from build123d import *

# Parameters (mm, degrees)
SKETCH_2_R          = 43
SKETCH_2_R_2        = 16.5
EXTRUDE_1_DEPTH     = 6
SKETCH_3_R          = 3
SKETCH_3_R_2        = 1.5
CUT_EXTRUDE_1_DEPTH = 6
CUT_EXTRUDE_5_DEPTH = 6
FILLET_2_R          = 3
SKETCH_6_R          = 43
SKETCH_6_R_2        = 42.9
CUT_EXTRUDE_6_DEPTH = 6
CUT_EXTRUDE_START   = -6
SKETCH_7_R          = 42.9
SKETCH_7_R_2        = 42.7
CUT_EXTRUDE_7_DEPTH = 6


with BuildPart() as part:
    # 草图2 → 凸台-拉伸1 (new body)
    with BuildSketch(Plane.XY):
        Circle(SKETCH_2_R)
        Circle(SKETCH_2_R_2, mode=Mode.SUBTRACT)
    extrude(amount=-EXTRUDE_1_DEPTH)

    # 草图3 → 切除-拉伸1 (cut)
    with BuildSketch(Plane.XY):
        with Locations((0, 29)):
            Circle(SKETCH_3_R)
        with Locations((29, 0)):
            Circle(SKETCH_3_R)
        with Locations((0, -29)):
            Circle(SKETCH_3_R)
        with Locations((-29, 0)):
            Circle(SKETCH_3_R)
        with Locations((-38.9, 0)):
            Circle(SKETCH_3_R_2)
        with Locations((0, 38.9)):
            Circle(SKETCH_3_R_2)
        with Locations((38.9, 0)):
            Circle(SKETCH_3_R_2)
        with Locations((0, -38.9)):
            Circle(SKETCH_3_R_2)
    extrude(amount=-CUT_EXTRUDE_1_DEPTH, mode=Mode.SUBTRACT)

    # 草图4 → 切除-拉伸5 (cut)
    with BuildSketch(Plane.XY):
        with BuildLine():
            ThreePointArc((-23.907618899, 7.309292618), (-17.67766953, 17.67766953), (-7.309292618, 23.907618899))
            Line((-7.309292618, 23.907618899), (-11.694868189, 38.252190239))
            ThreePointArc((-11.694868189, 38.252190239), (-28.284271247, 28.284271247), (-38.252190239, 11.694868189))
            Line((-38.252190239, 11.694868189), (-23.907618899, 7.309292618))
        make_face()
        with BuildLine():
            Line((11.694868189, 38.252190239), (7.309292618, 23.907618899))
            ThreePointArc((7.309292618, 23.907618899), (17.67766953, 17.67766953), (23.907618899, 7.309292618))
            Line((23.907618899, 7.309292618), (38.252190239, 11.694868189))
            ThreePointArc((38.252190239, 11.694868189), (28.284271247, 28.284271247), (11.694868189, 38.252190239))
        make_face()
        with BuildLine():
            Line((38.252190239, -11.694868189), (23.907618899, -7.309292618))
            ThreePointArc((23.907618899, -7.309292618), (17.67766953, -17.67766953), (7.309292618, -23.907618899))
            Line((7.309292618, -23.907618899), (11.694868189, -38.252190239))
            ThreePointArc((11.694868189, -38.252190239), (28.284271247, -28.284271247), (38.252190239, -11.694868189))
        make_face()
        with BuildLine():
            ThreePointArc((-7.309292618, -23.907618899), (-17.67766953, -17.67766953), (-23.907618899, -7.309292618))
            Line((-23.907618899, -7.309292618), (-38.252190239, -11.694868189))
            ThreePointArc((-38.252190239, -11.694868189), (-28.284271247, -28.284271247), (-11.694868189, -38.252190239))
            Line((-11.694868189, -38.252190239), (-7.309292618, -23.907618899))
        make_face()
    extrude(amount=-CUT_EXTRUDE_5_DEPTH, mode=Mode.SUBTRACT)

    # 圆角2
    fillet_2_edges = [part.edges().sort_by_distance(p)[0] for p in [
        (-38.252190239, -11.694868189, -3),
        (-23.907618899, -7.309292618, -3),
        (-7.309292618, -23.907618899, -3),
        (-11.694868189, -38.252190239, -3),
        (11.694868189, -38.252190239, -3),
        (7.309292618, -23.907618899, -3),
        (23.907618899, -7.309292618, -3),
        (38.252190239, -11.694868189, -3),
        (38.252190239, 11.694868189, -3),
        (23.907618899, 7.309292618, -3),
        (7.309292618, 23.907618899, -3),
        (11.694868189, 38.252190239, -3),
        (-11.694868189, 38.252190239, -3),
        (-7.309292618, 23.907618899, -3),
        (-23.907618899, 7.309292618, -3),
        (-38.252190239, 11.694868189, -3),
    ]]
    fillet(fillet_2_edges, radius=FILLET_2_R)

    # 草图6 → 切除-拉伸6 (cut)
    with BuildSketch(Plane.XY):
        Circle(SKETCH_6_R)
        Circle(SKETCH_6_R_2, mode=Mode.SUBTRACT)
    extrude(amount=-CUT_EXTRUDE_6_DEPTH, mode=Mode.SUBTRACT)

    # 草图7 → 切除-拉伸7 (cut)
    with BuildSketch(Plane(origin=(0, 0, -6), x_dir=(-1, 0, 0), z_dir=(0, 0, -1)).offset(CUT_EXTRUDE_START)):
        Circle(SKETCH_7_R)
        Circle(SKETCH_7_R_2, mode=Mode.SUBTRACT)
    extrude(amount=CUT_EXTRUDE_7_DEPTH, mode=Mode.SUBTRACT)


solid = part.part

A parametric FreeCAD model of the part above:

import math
import FreeCAD as App
import Part
import Sketcher
Q = App.Units.Quantity


def edges_at(feature, points):
    """Names of the edges that pass closest to the given points."""
    edges = feature.Shape.Edges
    near = lambda p: min(range(len(edges)), key=lambda i: edges[i].distToShape(Part.Vertex(*p))[0])
    return sorted({f"Edge{near(p) + 1}" for p in points})

doc = App.newDocument("Part")
params = doc.addObject("Spreadsheet::Sheet", "Params")
for row, (alias, value) in enumerate([
    ("sketch1_diameter", "86 mm"),
    ("sketch1_diameter2", "33 mm"),
    ("pad1_length", "6 mm"),
    ("sketch2_diameter", "6 mm"),
    ("sketch2_diameter2", "3 mm"),
    ("pocket1_length", "6 mm"),
    ("sketch3_radius", "25 mm"),
    ("sketch3_radius2", "40 mm"),
    ("pocket2_length", "6 mm"),
    ("fillet_radius", "3 mm"),
    ("sketch4_diameter", "86 mm"),
    ("sketch4_diameter2", "85.8 mm"),
    ("pocket3_length", "6 mm"),
    ("sketch5_diameter", "85.8 mm"),
    ("sketch5_diameter2", "85.4 mm"),
    ("pocket4_length", "6 mm"),
], start=1):
    params.set(f"A{row}", alias)
    params.set(f"B{row}", "=" + value)
    params.setAlias(f"B{row}", alias)

body = doc.addObject("PartDesign::Body", "Body")

# Sketch on XY plane
sketch1 = body.newObject("Sketcher::SketchObject", "Sketch")
sketch1.AttachmentSupport = (doc.getObject("XY_Plane"), [""])
sketch1.MapMode = "FlatFace"
sketch1.addGeometry([
    Part.Circle(App.Vector(0, 0, 0), App.Vector(0, 0, 1), 43),
    Part.Circle(App.Vector(0, 0, 0), App.Vector(0, 0, 1), 16),
], False)
sketch1.addConstraint([
    Sketcher.Constraint("Coincident", 0, 3, -1, 1),
    Sketcher.Constraint("Coincident", 1, 3, -1, 1),
    Sketcher.Constraint("Diameter", 0, 86.0),
    Sketcher.Constraint("Diameter", 1, 33.0),
])
sketch1.setExpression("Constraints[2]", "Params.sketch1_diameter")
sketch1.setExpression("Constraints[3]", "Params.sketch1_diameter2")
pad1 = body.newObject("PartDesign::Pad", "Pad")
pad1.Profile = sketch1
pad1.setExpression("Length", "Params.pad1_length")
pad1.Reversed = True

# Sketch on XY plane
sketch2 = body.newObject("Sketcher::SketchObject", "Sketch001")
sketch2.AttachmentSupport = (doc.getObject("XY_Plane"), [""])
sketch2.MapMode = "FlatFace"
sketch2.addGeometry([
    Part.Circle(App.Vector(0, 29, 0), App.Vector(0, 0, 1), 3),  # 0
    Part.Circle(App.Vector(29, 0, 0), App.Vector(0, 0, 1), 3),  # 1
    Part.Circle(App.Vector(0, -29, 0), App.Vector(0, 0, 1), 3),  # 2
    Part.Circle(App.Vector(-29, 0, 0), App.Vector(0, 0, 1), 3),  # 3
    Part.Circle(App.Vector(-38.9, 0, 0), App.Vector(0, 0, 1), 1.5),  # 4
    Part.Circle(App.Vector(0, 38.9, 0), App.Vector(0, 0, 1), 1.5),  # 5
    Part.Circle(App.Vector(38.9, 0, 0), App.Vector(0, 0, 1), 1.5),  # 6
    Part.Circle(App.Vector(0, -38.9, 0), App.Vector(0, 0, 1), 1.5),  # 7
], False)
sketch2.addConstraint([
    Sketcher.Constraint("Equal", 0, 1),
    Sketcher.Constraint("Equal", 1, 2),
    Sketcher.Constraint("Equal", 2, 3),
    Sketcher.Constraint("Equal", 4, 5),
    Sketcher.Constraint("Equal", 5, 6),
    Sketcher.Constraint("Equal", 6, 7),
    Sketcher.Constraint("Symmetric", 0, 3, 2, 3, -1, 1),
    Sketcher.Constraint("Symmetric", 1, 3, 3, 3, -1, 1),
    Sketcher.Constraint("Symmetric", 4, 3, 6, 3, -1, 1),
    Sketcher.Constraint("Symmetric", 5, 3, 7, 3, -1, 1),
    Sketcher.Constraint("PointOnObject", 0, 3, -2),
    Sketcher.Constraint("PointOnObject", 1, 3, -1),
    Sketcher.Constraint("PointOnObject", 4, 3, -1),
    Sketcher.Constraint("PointOnObject", 5, 3, -2),
    Sketcher.Constraint("Diameter", 0, 6.0),
    Sketcher.Constraint("Diameter", 4, 3.0),
    Sketcher.Constraint("DistanceY", -1, 1, 0, 3, 29.0),
    Sketcher.Constraint("DistanceX", -1, 1, 1, 3, 29.0),
    Sketcher.Constraint("DistanceX", 4, 3, -1, 1, 38.9),
    Sketcher.Constraint("DistanceY", -1, 1, 5, 3, 38.9),
])
sketch2.setExpression("Constraints[14]", "Params.sketch2_diameter")
sketch2.setExpression("Constraints[15]", "Params.sketch2_diameter2")
pocket1 = body.newObject("PartDesign::Pocket", "Pocket")
pocket1.Profile = sketch2
pocket1.setExpression("Length", "Params.pocket1_length")

# Sketch on XY plane
sketch3 = body.newObject("Sketcher::SketchObject", "Sketch002")
sketch3.AttachmentSupport = (doc.getObject("XY_Plane"), [""])
sketch3.MapMode = "FlatFace"
sketch3.addGeometry([
    Part.ArcOfCircle(Part.Circle(App.Vector(0, 0, 0), App.Vector(0, 0, 1), 25), math.radians(107), math.radians(163)),  # 0
    Part.LineSegment(App.Vector(-7, 24, 0), App.Vector(-12, 38, 0)),  # 1
    Part.ArcOfCircle(Part.Circle(App.Vector(0, 0, 0), App.Vector(0, 0, 1), 40), math.radians(107), math.radians(163)),  # 2
    Part.LineSegment(App.Vector(-38, 12, 0), App.Vector(-24, 7, 0)),  # 3
    Part.LineSegment(App.Vector(12, 38, 0), App.Vector(7, 24, 0)),  # 4
    Part.ArcOfCircle(Part.Circle(App.Vector(0, 0, 0), App.Vector(0, 0, 1), 25), math.radians(17), math.radians(73)),  # 5
    Part.LineSegment(App.Vector(24, 7, 0), App.Vector(38, 12, 0)),  # 6
    Part.ArcOfCircle(Part.Circle(App.Vector(0, 0, 0), App.Vector(0, 0, 1), 40), math.radians(17), math.radians(73)),  # 7
    Part.LineSegment(App.Vector(38, -12, 0), App.Vector(24, -7, 0)),  # 8
    Part.ArcOfCircle(Part.Circle(App.Vector(0, 0, 0), App.Vector(0, 0, 1), 25), math.radians(-73), math.radians(-17)),  # 9
    Part.LineSegment(App.Vector(7, -24, 0), App.Vector(12, -38, 0)),  # 10
    Part.ArcOfCircle(Part.Circle(App.Vector(0, 0, 0), App.Vector(0, 0, 1), 40), math.radians(-73), math.radians(-17)),  # 11
    Part.ArcOfCircle(Part.Circle(App.Vector(0, 0, 0), App.Vector(0, 0, 1), 25), math.radians(-163), math.radians(-107)),  # 12
    Part.LineSegment(App.Vector(-24, -7, 0), App.Vector(-38, -12, 0)),  # 13
    Part.ArcOfCircle(Part.Circle(App.Vector(0, 0, 0), App.Vector(0, 0, 1), 40), math.radians(-163), math.radians(-107)),  # 14
    Part.LineSegment(App.Vector(-12, -38, 0), App.Vector(-7, -24, 0)),  # 15
], False)
sketch3.addConstraint([
    Sketcher.Constraint("Coincident", 0, 1, 1, 1),
    Sketcher.Constraint("Coincident", 1, 2, 2, 1),
    Sketcher.Constraint("Coincident", 2, 2, 3, 1),
    Sketcher.Constraint("Coincident", 3, 2, 0, 2),
    Sketcher.Constraint("Coincident", 4, 2, 5, 2),
    Sketcher.Constraint("Coincident", 5, 1, 6, 1),
    Sketcher.Constraint("Coincident", 6, 2, 7, 1),
    Sketcher.Constraint("Coincident", 7, 2, 4, 1),
    Sketcher.Constraint("Coincident", 8, 2, 9, 2),
    Sketcher.Constraint("Coincident", 9, 1, 10, 1),
    Sketcher.Constraint("Coincident", 10, 2, 11, 1),
    Sketcher.Constraint("Coincident", 11, 2, 8, 1),
    Sketcher.Constraint("Coincident", 12, 1, 13, 1),
    Sketcher.Constraint("Coincident", 13, 2, 14, 1),
    Sketcher.Constraint("Coincident", 14, 2, 15, 1),
    Sketcher.Constraint("Coincident", 15, 2, 12, 2),
    Sketcher.Constraint("Coincident", 0, 3, -1, 1),
    Sketcher.Constraint("Coincident", 2, 3, -1, 1),
    Sketcher.Constraint("Coincident", 5, 3, -1, 1),
    Sketcher.Constraint("Coincident", 7, 3, -1, 1),
    Sketcher.Constraint("Coincident", 9, 3, -1, 1),
    Sketcher.Constraint("Coincident", 11, 3, -1, 1),
    Sketcher.Constraint("Coincident", 12, 3, -1, 1),
    Sketcher.Constraint("Coincident", 14, 3, -1, 1),
    Sketcher.Constraint("Equal", 0, 5),
    Sketcher.Constraint("Equal", 2, 7),
    Sketcher.Constraint("Equal", 5, 9),
    Sketcher.Constraint("Equal", 7, 11),
    Sketcher.Constraint("Equal", 9, 12),
    Sketcher.Constraint("Equal", 11, 14),
    Sketcher.Constraint("Perpendicular", 3, 4),
    Sketcher.Constraint("Perpendicular", 1, 6),
    Sketcher.Constraint("Perpendicular", 4, 8),
    Sketcher.Constraint("Perpendicular", 6, 10),
    Sketcher.Constraint("Perpendicular", 10, 13),
    Sketcher.Constraint("Perpendicular", 8, 15),
    Sketcher.Constraint("Horizontal", 0, 1, 4, 2),
    Sketcher.Constraint("Horizontal", 3, 2, 5, 1),
    Sketcher.Constraint("Horizontal", 2, 2, 6, 2),
    Sketcher.Constraint("Horizontal", 8, 2, 12, 1),
    Sketcher.Constraint("Horizontal", 10, 2, 14, 2),
    Sketcher.Constraint("Vertical", 5, 1, 8, 2),
    Sketcher.Constraint("Vertical", 4, 2, 9, 1),
    Sketcher.Constraint("Radius", 0, 25.0),
    Sketcher.Constraint("Radius", 2, 40.0),
    Sketcher.Constraint("Angle", 1, Q("107 deg")),
    Sketcher.Constraint("DistanceY", -1, 1, 0, 1, 23.907619),
    Sketcher.Constraint("DistanceX", 2, 2, -1, 1, 38.25219),
])
sketch3.setExpression("Constraints[43]", "Params.sketch3_radius")
sketch3.setExpression("Constraints[44]", "Params.sketch3_radius2")
pocket2 = body.newObject("PartDesign::Pocket", "Pocket001")
pocket2.Profile = sketch3
pocket2.setExpression("Length", "Params.pocket2_length")
doc.recompute()

fillet = body.newObject("PartDesign::Fillet", "Fillet")
fillet.Base = (pocket2, edges_at(pocket2, [
    (-38.252, -11.695, -3),
    (-23.908, -7.309, -3),
    (-7.309, -23.908, -3),
    (-11.695, -38.252, -3),
    (11.695, -38.252, -3),
    (7.309, -23.908, -3),
    (23.908, -7.309, -3),
    (38.252, -11.695, -3),
    (38.252, 11.695, -3),
    (23.908, 7.309, -3),
    (7.309, 23.908, -3),
    (11.695, 38.252, -3),
    (-11.695, 38.252, -3),
    (-7.309, 23.908, -3),
    (-23.908, 7.309, -3),
    (-38.252, 11.695, -3),
]))
fillet.setExpression("Radius", "Params.fillet_radius")

# Sketch on XY plane
sketch4 = body.newObject("Sketcher::SketchObject", "Sketch003")
sketch4.AttachmentSupport = (doc.getObject("XY_Plane"), [""])
sketch4.MapMode = "FlatFace"
sketch4.addGeometry([
    Part.Circle(App.Vector(0, 0, 0), App.Vector(0, 0, 1), 43),
    Part.Circle(App.Vector(0, 0, 0), App.Vector(0, 0, 1), 43),
], False)
sketch4.addConstraint([
    Sketcher.Constraint("Coincident", 0, 3, -1, 1),
    Sketcher.Constraint("Coincident", 1, 3, -1, 1),
    Sketcher.Constraint("Diameter", 0, 86.0),
    Sketcher.Constraint("Diameter", 1, 85.8),
])
sketch4.setExpression("Constraints[2]", "Params.sketch4_diameter")
sketch4.setExpression("Constraints[3]", "Params.sketch4_diameter2")
pocket3 = body.newObject("PartDesign::Pocket", "Pocket002")
pocket3.Profile = sketch4
pocket3.setExpression("Length", "Params.pocket3_length")

# Sketch on XY plane
sketch5 = body.newObject("Sketcher::SketchObject", "Sketch004")
sketch5.AttachmentSupport = (doc.getObject("XY_Plane"), [""])
sketch5.MapMode = "FlatFace"
sketch5.addGeometry([
    Part.Circle(App.Vector(0, 0, 0), App.Vector(0, 0, 1), 43),
    Part.Circle(App.Vector(0, 0, 0), App.Vector(0, 0, 1), 43),
], False)
sketch5.addConstraint([
    Sketcher.Constraint("Coincident", 0, 3, -1, 1),
    Sketcher.Constraint("Coincident", 1, 3, -1, 1),
    Sketcher.Constraint("Diameter", 0, 85.8),
    Sketcher.Constraint("Diameter", 1, 85.4),
])
sketch5.setExpression("Constraints[2]", "Params.sketch5_diameter")
sketch5.setExpression("Constraints[3]", "Params.sketch5_diameter2")
pocket4 = body.newObject("PartDesign::Pocket", "Pocket003")
pocket4.Profile = sketch5
pocket4.setExpression("Length", "Params.pocket4_length")

doc.recompute()
